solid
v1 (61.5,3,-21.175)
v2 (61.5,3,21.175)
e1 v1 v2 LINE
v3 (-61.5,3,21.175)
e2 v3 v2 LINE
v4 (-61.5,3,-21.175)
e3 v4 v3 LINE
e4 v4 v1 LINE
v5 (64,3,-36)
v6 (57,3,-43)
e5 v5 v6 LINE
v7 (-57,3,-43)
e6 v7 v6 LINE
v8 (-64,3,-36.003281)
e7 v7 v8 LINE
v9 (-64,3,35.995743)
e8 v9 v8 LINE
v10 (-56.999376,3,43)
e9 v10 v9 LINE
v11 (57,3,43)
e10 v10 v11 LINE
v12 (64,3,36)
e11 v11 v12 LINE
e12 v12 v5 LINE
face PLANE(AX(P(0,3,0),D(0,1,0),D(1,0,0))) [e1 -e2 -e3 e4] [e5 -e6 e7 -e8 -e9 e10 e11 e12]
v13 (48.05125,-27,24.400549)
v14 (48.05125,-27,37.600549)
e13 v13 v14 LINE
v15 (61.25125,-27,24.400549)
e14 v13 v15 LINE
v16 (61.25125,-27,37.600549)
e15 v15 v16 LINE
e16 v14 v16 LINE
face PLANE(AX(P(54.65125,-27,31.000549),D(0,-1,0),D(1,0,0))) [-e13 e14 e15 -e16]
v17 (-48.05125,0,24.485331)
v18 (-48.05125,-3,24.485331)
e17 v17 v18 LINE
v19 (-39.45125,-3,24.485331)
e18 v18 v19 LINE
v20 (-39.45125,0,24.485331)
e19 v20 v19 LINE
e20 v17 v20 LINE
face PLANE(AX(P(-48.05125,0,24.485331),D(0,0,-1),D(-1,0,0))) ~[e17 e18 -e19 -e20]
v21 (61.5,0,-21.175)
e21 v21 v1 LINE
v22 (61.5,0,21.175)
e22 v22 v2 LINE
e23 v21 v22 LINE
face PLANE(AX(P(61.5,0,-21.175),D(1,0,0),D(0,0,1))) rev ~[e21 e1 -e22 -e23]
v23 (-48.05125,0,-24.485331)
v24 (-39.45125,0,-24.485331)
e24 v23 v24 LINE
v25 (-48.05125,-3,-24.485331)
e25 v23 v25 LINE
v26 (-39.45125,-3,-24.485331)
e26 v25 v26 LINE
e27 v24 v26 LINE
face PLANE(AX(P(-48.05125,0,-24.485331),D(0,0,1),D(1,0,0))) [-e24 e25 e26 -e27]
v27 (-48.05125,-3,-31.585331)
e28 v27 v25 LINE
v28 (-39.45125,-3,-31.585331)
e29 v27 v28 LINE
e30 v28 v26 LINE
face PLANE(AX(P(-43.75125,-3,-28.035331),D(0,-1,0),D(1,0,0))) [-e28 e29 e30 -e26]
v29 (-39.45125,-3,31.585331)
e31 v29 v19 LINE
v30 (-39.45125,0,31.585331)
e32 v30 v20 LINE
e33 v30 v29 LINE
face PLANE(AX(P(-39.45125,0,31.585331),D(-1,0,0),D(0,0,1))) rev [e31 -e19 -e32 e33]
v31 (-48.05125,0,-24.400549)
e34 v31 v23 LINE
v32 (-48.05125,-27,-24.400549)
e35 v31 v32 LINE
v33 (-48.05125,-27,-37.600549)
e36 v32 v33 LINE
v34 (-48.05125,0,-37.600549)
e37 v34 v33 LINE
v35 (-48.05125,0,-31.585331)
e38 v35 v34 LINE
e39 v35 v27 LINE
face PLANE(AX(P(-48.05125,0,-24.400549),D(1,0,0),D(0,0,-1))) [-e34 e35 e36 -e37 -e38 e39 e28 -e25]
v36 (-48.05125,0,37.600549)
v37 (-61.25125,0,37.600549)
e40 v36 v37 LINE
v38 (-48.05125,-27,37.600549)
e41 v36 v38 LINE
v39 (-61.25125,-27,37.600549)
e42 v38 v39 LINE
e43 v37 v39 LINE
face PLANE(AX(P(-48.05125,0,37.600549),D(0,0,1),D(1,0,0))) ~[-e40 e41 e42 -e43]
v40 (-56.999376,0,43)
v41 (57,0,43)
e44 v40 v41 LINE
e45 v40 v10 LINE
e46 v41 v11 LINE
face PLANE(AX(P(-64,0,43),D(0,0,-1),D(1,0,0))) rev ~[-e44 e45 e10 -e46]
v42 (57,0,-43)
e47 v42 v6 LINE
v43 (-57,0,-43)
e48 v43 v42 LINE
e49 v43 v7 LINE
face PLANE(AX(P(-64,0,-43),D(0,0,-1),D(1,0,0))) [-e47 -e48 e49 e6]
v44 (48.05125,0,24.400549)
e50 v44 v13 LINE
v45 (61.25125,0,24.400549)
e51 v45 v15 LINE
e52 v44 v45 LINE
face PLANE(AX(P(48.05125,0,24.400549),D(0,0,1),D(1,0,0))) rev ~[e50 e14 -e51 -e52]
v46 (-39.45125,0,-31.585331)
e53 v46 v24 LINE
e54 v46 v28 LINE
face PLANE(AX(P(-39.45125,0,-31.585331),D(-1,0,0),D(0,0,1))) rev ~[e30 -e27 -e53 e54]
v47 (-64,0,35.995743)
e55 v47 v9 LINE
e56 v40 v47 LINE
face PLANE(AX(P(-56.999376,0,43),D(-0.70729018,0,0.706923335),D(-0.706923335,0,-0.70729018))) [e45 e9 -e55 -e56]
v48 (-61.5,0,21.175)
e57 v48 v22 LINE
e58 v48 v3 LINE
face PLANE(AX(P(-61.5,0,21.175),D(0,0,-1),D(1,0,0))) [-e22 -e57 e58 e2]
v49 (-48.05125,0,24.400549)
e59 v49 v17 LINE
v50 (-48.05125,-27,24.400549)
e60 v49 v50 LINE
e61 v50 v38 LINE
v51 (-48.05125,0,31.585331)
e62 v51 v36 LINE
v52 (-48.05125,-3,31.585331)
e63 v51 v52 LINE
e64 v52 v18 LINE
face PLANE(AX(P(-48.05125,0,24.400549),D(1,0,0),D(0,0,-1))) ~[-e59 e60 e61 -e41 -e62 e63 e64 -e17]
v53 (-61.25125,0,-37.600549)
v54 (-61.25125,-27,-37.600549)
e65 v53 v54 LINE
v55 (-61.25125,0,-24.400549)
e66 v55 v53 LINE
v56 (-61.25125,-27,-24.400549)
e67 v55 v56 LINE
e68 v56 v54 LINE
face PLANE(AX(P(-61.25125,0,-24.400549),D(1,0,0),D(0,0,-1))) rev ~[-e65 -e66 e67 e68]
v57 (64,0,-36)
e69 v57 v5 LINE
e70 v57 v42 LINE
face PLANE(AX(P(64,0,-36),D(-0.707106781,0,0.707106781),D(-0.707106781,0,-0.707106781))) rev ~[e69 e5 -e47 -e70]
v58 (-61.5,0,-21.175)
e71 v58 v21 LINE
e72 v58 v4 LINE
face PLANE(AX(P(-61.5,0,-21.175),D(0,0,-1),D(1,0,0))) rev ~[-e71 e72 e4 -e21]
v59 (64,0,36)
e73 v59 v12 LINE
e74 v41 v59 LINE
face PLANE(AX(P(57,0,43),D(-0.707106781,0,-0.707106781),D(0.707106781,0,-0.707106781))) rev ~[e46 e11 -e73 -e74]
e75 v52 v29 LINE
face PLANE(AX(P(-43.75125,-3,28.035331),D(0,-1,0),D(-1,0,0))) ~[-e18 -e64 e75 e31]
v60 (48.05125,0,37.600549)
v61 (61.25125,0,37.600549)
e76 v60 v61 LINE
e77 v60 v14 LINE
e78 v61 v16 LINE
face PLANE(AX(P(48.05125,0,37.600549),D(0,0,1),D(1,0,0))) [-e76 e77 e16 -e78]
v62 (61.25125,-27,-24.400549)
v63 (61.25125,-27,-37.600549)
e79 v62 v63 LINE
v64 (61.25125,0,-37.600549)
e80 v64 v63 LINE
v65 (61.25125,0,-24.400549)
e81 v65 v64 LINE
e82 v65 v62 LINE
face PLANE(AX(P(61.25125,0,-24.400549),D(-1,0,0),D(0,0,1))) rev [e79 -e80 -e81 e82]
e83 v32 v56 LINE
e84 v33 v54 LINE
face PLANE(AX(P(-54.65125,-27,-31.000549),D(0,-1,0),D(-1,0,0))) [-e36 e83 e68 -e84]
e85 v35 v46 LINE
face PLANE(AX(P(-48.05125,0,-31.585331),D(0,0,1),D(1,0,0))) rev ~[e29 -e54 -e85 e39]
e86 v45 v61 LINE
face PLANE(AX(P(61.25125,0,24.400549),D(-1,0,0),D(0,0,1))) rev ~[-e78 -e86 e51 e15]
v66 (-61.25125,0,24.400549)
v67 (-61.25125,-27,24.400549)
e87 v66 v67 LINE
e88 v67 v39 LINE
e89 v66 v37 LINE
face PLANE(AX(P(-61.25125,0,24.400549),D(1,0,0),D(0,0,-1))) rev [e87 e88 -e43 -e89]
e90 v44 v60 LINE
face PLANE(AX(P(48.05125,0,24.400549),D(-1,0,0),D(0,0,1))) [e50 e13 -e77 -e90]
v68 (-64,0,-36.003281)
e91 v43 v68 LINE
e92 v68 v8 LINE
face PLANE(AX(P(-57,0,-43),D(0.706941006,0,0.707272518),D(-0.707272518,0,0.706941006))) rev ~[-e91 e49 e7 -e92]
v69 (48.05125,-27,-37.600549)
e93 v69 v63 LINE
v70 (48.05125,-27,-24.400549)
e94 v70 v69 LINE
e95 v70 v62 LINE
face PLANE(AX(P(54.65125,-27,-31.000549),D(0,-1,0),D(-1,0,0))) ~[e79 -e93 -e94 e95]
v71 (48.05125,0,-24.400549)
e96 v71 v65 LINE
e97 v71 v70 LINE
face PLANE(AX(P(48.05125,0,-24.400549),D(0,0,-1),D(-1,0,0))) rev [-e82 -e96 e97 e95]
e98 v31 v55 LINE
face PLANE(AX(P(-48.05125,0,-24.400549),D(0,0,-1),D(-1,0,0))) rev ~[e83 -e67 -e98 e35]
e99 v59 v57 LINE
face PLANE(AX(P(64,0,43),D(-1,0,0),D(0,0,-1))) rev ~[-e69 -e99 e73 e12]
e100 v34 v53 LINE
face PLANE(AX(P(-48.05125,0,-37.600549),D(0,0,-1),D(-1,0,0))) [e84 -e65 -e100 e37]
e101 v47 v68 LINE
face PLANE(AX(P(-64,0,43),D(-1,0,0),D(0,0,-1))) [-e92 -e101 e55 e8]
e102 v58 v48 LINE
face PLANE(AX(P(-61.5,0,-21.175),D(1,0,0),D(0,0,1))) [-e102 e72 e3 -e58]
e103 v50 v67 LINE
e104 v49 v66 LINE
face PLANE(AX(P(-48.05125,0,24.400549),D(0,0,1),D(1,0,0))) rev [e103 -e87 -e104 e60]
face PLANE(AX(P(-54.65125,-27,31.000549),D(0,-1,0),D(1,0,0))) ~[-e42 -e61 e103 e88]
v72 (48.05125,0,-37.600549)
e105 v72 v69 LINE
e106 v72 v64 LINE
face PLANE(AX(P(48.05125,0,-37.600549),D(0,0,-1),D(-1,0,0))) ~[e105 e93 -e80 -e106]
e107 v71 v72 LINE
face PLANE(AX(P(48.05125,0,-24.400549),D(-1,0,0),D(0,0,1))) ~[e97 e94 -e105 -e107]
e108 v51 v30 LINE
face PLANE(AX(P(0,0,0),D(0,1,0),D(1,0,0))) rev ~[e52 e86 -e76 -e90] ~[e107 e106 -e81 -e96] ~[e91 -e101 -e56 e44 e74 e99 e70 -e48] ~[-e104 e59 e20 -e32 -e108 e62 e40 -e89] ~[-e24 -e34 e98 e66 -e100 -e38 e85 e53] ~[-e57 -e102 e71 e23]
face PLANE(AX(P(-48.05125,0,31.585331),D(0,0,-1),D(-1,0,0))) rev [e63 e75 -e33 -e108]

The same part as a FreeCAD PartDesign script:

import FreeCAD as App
import Part
import Sketcher

doc = App.newDocument("Part")
body = doc.addObject("PartDesign::Body", "Body")

# Sketch on XZ plane
sketch1 = body.newObject("Sketcher::SketchObject", "Sketch")
sketch1.AttachmentSupport = (doc.getObject("XZ_Plane"), [""])
sketch1.MapMode = "FlatFace"
sketch1.addGeometry([
    Part.LineSegment(App.Vector(-64, -43, 0), App.Vector(-64, 43, 0)),
    Part.LineSegment(App.Vector(-64, 43, 0), App.Vector(64, 43, 0)),
    Part.LineSegment(App.Vector(64, 43, 0), App.Vector(64, -43, 0)),
    Part.LineSegment(App.Vector(64, -43, 0), App.Vector(-64, -43, 0)),
], False)
sketch1.addConstraint([
    Sketcher.Constraint("Coincident", 0, 2, 1, 1),
    Sketcher.Constraint("Coincident", 1, 2, 2, 1),
    Sketcher.Constraint("Coincident", 2, 2, 3, 1),
    Sketcher.Constraint("Coincident", 3, 2, 0, 1),
    Sketcher.Constraint("Vertical", 0),
    Sketcher.Constraint("Horizontal", 1),
    Sketcher.Constraint("Vertical", 2),
    Sketcher.Constraint("Horizontal", 3),
    Sketcher.Constraint("Symmetric", 0, 2, 2, 2, -1, 1),
    Sketcher.Constraint("DistanceX", 1, 1, 1, 2, 128.0),
    Sketcher.Constraint("DistanceY", 0, 1, 0, 2, 86.0),
])
pad1 = body.newObject("PartDesign::Pad", "Pad")
pad1.Profile = sketch1
pad1.Length = 3
pad1.Reversed = True

# Sketch on XZ plane
sketch2 = body.newObject("Sketcher::SketchObject", "Sketch001")
sketch2.AttachmentSupport = (doc.getObject("XZ_Plane"), [""])
sketch2.MapMode = "FlatFace"
sketch2.addGeometry([
    Part.LineSegment(App.Vector(-57, 43, 0), App.Vector(-64, 43, 0)),
    Part.LineSegment(App.Vector(-64, 43, 0), App.Vector(-64, 36, 0)),
    Part.LineSegment(App.Vector(-64, 36, 0), App.Vector(-57, 43, 0)),
], False)
sketch2.addConstraint([
    Sketcher.Constraint("Coincident", 0, 2, 1, 1),
    Sketcher.Constraint("Coincident", 1, 2, 2, 1),
    Sketcher.Constraint("Coincident", 2, 2, 0, 1),
    Sketcher.Constraint("Horizontal", 0),
    Sketcher.Constraint("Vertical", 1),
    Sketcher.Constraint("DistanceX", 0, 2, -1, 1, 64.0),
    Sketcher.Constraint("DistanceY", -1, 1, 0, 2, 43.0),
    Sketcher.Constraint("DistanceX", 0, 2, 0, 1, 7.000624),
    Sketcher.Constraint("DistanceY", 1, 2, 1, 1, 7.004257),
])
pocket1 = body.newObject("PartDesign::Pocket", "Pocket")
pocket1.Profile = sketch2
pocket1.Length = 3

# Sketch on XZ plane
sketch3 = body.newObject("Sketcher::SketchObject", "Sketch002")
sketch3.AttachmentSupport = (doc.getObject("XZ_Plane"), [""])
sketch3.MapMode = "FlatFace"
sketch3.addGeometry([
    Part.LineSegment(App.Vector(-64, -43, 0), App.Vector(-57, -43, 0)),
    Part.LineSegment(App.Vector(-57, -43, 0), App.Vector(-64, -36, 0)),
    Part.LineSegment(App.Vector(-64, -36, 0), App.Vector(-64, -43, 0)),
], False)
sketch3.addConstraint([
    Sketcher.Constraint("Coincident", 0, 2, 1, 1),
    Sketcher.Constraint("Coincident", 1, 2, 2, 1),
    Sketcher.Constraint("Coincident", 2, 2, 0, 1),
    Sketcher.Constraint("Horizontal", 0),
    Sketcher.Constraint("Vertical", 2),
    Sketcher.Constraint("DistanceX", 0, 1, 0, 2, 7.0),
    Sketcher.Constraint("DistanceX", 0, 2, -1, 1, 57.0),
    Sketcher.Constraint("DistanceY", 0, 2, -1, 1, 43.0),
    Sketcher.Constraint("DistanceY", 2, 2, 2, 1, 6.996719),
])
pocket2 = body.newObject("PartDesign::Pocket", "Pocket001")
pocket2.Profile = sketch3
pocket2.Length = 3

# Sketch on XZ plane
sketch4 = body.newObject("Sketcher::SketchObject", "Sketch003")
sketch4.AttachmentSupport = (doc.getObject("XZ_Plane"), [""])
sketch4.MapMode = "FlatFace"
sketch4.addGeometry([
    Part.LineSegment(App.Vector(64, 43, 0), App.Vector(57, 43, 0)),
    Part.LineSegment(App.Vector(57, 43, 0), App.Vector(64, 36, 0)),
    Part.LineSegment(App.Vector(64, 36, 0), App.Vector(64, 43, 0)),
], False)
sketch4.addConstraint([
    Sketcher.Constraint("Coincident", 0, 2, 1, 1),
    Sketcher.Constraint("Coincident", 1, 2, 2, 1),
    Sketcher.Constraint("Coincident", 2, 2, 0, 1),
    Sketcher.Constraint("Horizontal", 0),
    Sketcher.Constraint("Vertical", 2),
    Sketcher.Constraint("Equal", 0, 2),
    Sketcher.Constraint("DistanceX", 0, 2, 0, 1, 7.0),
    Sketcher.Constraint("DistanceX", -1, 1, 0, 2, 57.0),
    Sketcher.Constraint("DistanceY", -1, 1, 0, 2, 43.0),
])
pocket3 = body.newObject("PartDesign::Pocket", "Pocket002")
pocket3.Profile = sketch4
pocket3.Length = 3

# Sketch on XZ plane
sketch5 = body.newObject("Sketcher::SketchObject", "Sketch004")
sketch5.AttachmentSupport = (doc.getObject("XZ_Plane"), [""])
sketch5.MapMode = "FlatFace"
sketch5.addGeometry([
    Part.LineSegment(App.Vector(64, -43, 0), App.Vector(64, -36, 0)),
    Part.LineSegment(App.Vector(64, -36, 0), App.Vector(57, -43, 0)),
    Part.LineSegment(App.Vector(57, -43, 0), App.Vector(64, -43, 0)),
], False)
sketch5.addConstraint([
    Sketcher.Constraint("Coincident", 0, 2, 1, 1),
    Sketcher.Constraint("Coincident", 1, 2, 2, 1),
    Sketcher.Constraint("Coincident", 2, 2, 0, 1),
    Sketcher.Constraint("Vertical", 0),
    Sketcher.Constraint("Horizontal", 2),
    Sketcher.Constraint("Equal", 2, 0),
    Sketcher.Constraint("DistanceX", 2, 1, 2, 2, 7.0),
    Sketcher.Constraint("DistanceX", -1, 1, 0, 2, 64.0),
    Sketcher.Constraint("DistanceY", 0, 2, -1, 1, 36.0),
])
pocket4 = body.newObject("PartDesign::Pocket", "Pocket003")
pocket4.Profile = sketch5
pocket4.Length = 3

# Sketch on XZ plane
sketch6 = body.newObject("Sketcher::SketchObject", "Sketch005")
sketch6.AttachmentSupport = (doc.getObject("XZ_Plane"), [""])
sketch6.MapMode = "FlatFace"
sketch6.addGeometry([
    Part.LineSegment(App.Vector(-62, 21, 0), App.Vector(-62, -21, 0)),
    Part.LineSegment(App.Vector(-62, -21, 0), App.Vector(62, -21, 0)),
    Part.LineSegment(App.Vector(62, -21, 0), App.Vector(62, 21, 0)),
    Part.LineSegment(App.Vector(62, 21, 0), App.Vector(-62, 21, 0)),
], False)
sketch6.addConstraint([
    Sketcher.Constraint("Coincident", 0, 2, 1, 1),
    Sketcher.Constraint("Coincident", 1, 2, 2, 1),
    Sketcher.Constraint("Coincident", 2, 2, 3, 1),
    Sketcher.Constraint("Coincident", 3, 2, 0, 1),
    Sketcher.Constraint("Vertical", 0),
    Sketcher.Constraint("Horizontal", 1),
    Sketcher.Constraint("Vertical", 2),
    Sketcher.Constraint("Horizontal", 3),
    Sketcher.Constraint("Symmetric", 0, 2, 2, 2, -1, 1),
    Sketcher.Constraint("DistanceX", 1, 1, 1, 2, 123.0),
    Sketcher.Constraint("DistanceY", 0, 2, 0, 1, 42.35),
])
pocket5 = body.newObject("PartDesign::Pocket", "Pocket004")
pocket5.Profile = sketch6
pocket5.Length = 3

# Sketch on XZ plane
sketch7 = body.newObject("Sketcher::SketchObject", "Sketch006")
sketch7.AttachmentSupport = (doc.getObject("XZ_Plane"), [""])
sketch7.MapMode = "FlatFace"
sketch7.addGeometry([
    Part.LineSegment(App.Vector(48, 38, 0), App.Vector(48, 24, 0)),
    Part.LineSegment(App.Vector(48, 24, 0), App.Vector(61, 24, 0)),
    Part.LineSegment(App.Vector(61, 24, 0), App.Vector(61, 38, 0)),
    Part.LineSegment(App.Vector(61, 38, 0), App.Vector(48, 38, 0)),
], False)
sketch7.addConstraint([
    Sketcher.Constraint("Coincident", 0, 2, 1, 1),
    Sketcher.Constraint("Coincident", 1, 2, 2, 1),
    Sketcher.Constraint("Coincident", 2, 2, 3, 1),
    Sketcher.Constraint("Coincident", 3, 2, 0, 1),
    Sketcher.Constraint("Vertical", 0),
    Sketcher.Constraint("Horizontal", 1),
    Sketcher.Constraint("Vertical", 2),
    Sketcher.Constraint("Horizontal", 3),
    Sketcher.Constraint("Equal", 3, 0),
    Sketcher.Constraint("DistanceX", 1, 1, 1, 2, 13.2),
    Sketcher.Constraint("DistanceX", -1, 1, 0, 2, 48.05125),
    Sketcher.Constraint("DistanceY", -1, 1, 0, 2, 24.400549),
])
pad2 = body.newObject("PartDesign::Pad", "Pad001")
pad2.Profile = sketch7
pad2.Length = 27
doc.recompute()

mirrored = body.newObject("PartDesign::Mirrored", "Mirrored")
mirrored.Originals = [pad2]
mirrored.MirrorPlane = (doc.getObject("XY_Plane"), [""])
body.Tip = mirrored
doc.recompute()

mirrored2 = body.newObject("PartDesign::Mirrored", "Mirrored001")
mirrored2.Originals = [pad2]
mirrored2.MirrorPlane = (doc.getObject("YZ_Plane"), [""])
body.Tip = mirrored2

# Sketch on XZ plane
sketch8 = body.newObject("Sketcher::SketchObject", "Sketch007")
sketch8.AttachmentSupport = (doc.getObject("XZ_Plane"), [""])
sketch8.MapMode = "FlatFace"
sketch8.addGeometry([
    Part.LineSegment(App.Vector(-48, -38, 0), App.Vector(-48, -24, 0)),
    Part.LineSegment(App.Vector(-48, -24, 0), App.Vector(-61, -24, 0)),
    Part.LineSegment(App.Vector(-61, -24, 0), App.Vector(-61, -38, 0)),
    Part.LineSegment(App.Vector(-61, -38, 0), App.Vector(-48, -38, 0)),
], False)
sketch8.addConstraint([
    Sketcher.Constraint("Coincident", 0, 2, 1, 1),
    Sketcher.Constraint("Coincident", 1, 2, 2, 1),
    Sketcher.Constraint("Coincident", 2, 2, 3, 1),
    Sketcher.Constraint("Coincident", 3, 2, 0, 1),
    Sketcher.Constraint("Vertical", 0),
    Sketcher.Constraint("Horizontal", 1),
    Sketcher.Constraint("Vertical", 2),
    Sketcher.Constraint("Horizontal", 3),
    Sketcher.Constraint("Equal", 3, 0),
    Sketcher.Constraint("DistanceX", 1, 2, 1, 1, 13.2),
    Sketcher.Constraint("DistanceX", 0, 2, -1, 1, 48.05125),
    Sketcher.Constraint("DistanceY", 0, 2, -1, 1, 24.400549),
])
pad3 = body.newObject("PartDesign::Pad", "Pad002")
pad3.Profile = sketch8
pad3.Length = 27

# Sketch on XZ plane
sketch9 = body.newObject("Sketcher::SketchObject", "Sketch008")
sketch9.AttachmentSupport = (doc.getObject("XZ_Plane"), [""])
sketch9.MapMode = "FlatFace"
sketch9.addGeometry([
    Part.LineSegment(App.Vector(-48, -24, 0), App.Vector(-48, -32, 0)),
    Part.LineSegment(App.Vector(-48, -32, 0), App.Vector(-39, -32, 0)),
    Part.LineSegment(App.Vector(-39, -32, 0), App.Vector(-39, -24, 0)),
    Part.LineSegment(App.Vector(-39, -24, 0), App.Vector(-48, -24, 0)),
], False)
sketch9.addConstraint([
    Sketcher.Constraint("Coincident", 0, 2, 1, 1),
    Sketcher.Constraint("Coincident", 1, 2, 2, 1),
    Sketcher.Constraint("Coincident", 2, 2, 3, 1),
    Sketcher.Constraint("Coincident", 3, 2, 0, 1),
    Sketcher.Constraint("Vertical", 0),
    Sketcher.Constraint("Horizontal", 1),
    Sketcher.Constraint("Vertical", 2),
    Sketcher.Constraint("Horizontal", 3),
    Sketcher.Constraint("DistanceX", 1, 1, 1, 2, 8.6),
    Sketcher.Constraint("DistanceY", 0, 2, 0, 1, 7.1),
    Sketcher.Constraint("DistanceX", 0, 2, -1, 1, 48.05125),
    Sketcher.Constraint("DistanceY", 0, 2, -1, 1, 31.585331),
])
pad4 = body.newObject("PartDesign::Pad", "Pad003")
pad4.Profile = sketch9
pad4.Length = 3
doc.recompute()

mirrored3 = body.newObject("PartDesign::Mirrored", "Mirrored002")
mirrored3.Originals = [pad4]
mirrored3.MirrorPlane = (doc.getObject("XY_Plane"), [""])
body.Tip = mirrored3

doc.recompute()
